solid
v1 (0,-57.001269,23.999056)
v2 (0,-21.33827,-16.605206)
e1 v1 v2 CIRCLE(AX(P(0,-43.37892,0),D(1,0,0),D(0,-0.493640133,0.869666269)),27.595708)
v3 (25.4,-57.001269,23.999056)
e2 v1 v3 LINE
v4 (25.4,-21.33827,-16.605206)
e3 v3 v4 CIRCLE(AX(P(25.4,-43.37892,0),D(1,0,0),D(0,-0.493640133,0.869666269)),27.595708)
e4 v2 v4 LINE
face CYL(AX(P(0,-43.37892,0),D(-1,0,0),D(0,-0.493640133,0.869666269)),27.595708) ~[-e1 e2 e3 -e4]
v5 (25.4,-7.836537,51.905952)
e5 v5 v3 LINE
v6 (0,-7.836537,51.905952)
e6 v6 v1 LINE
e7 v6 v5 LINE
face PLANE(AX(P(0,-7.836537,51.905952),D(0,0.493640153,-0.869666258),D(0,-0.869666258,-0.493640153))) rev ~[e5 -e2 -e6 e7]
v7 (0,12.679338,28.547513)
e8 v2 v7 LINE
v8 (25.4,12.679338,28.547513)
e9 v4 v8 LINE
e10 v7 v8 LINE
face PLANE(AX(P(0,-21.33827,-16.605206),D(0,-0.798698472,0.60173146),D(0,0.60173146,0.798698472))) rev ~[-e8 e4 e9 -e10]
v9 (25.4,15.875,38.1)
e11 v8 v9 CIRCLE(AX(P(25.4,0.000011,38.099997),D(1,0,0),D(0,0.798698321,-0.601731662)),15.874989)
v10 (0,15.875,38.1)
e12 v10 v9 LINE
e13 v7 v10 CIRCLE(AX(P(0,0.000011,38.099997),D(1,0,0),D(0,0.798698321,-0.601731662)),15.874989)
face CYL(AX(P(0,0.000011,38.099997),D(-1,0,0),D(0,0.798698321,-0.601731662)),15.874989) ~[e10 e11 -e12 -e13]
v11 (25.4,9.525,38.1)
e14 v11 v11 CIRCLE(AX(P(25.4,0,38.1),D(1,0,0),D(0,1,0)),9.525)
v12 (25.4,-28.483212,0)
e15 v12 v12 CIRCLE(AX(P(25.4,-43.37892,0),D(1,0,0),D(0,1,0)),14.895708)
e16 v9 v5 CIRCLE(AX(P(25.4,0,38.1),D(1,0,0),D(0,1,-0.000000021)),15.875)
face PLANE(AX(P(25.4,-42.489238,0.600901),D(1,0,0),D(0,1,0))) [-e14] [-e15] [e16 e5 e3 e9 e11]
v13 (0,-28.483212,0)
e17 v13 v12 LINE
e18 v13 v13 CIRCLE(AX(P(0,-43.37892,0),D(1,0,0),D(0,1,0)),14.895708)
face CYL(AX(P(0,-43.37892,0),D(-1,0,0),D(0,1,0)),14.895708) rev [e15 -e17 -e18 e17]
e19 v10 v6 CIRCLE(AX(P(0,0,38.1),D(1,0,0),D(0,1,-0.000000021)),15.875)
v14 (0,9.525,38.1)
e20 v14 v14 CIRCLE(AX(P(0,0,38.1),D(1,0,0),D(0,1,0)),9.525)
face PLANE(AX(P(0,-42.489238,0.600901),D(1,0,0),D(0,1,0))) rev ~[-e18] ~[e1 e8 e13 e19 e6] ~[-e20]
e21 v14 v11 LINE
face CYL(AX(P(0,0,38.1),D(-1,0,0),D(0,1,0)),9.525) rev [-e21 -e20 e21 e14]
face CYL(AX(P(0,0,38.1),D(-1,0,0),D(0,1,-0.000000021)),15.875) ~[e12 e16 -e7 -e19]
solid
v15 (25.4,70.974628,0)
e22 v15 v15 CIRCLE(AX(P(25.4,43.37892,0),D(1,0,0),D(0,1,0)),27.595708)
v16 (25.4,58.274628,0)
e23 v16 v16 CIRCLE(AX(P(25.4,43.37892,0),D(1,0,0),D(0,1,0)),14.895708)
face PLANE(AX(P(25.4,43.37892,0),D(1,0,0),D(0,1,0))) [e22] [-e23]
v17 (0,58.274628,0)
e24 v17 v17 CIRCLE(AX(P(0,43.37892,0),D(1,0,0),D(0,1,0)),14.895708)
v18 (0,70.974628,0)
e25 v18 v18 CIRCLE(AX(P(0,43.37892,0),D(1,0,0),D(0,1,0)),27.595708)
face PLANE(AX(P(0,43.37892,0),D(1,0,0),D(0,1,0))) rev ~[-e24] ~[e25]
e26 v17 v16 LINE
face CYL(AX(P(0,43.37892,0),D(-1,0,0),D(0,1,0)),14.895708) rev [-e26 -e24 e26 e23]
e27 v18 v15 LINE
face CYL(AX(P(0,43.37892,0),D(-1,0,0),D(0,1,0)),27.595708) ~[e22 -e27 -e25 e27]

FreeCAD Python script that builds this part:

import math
import FreeCAD as App
import Part
import Sketcher
Q = App.Units.Quantity

doc = App.newDocument("Part")
body = doc.addObject("PartDesign::Body", "Body")
body.AllowCompound = True

sketch1 = doc.addObject("Sketcher::SketchObject", "Sketch")
body.addObject(sketch1)
sketch1.AttachmentSupport = (doc.YZ_Plane, [""])
sketch1.MapMode = "FlatFace"
sketch1.addGeometry([
    Part.ArcOfCircle(Part.Circle(App.Vector(-43.37892, 0, 0), App.Vector(0, 0, 1), 27.595708), math.radians(119.580119), math.radians(323.005995)),
    Part.LineSegment(App.Vector(-21.33827, -16.605206, 0), App.Vector(12.679338, 28.547513, 0)),
    Part.ArcOfCircle(Part.Circle(App.Vector(0.000011, 38.099997, 0), App.Vector(0, 0, 1), 15.874989), math.radians(-36.99402), math.radians(0.000012)),
    Part.ArcOfCircle(Part.Circle(App.Vector(0, 38.1, 0), App.Vector(0, 0, 1), 15.875), math.radians(-0.000001), math.radians(119.58012)),
    Part.LineSegment(App.Vector(-7.836537, 51.905952, 0), App.Vector(-57.001269, 23.999056, 0)),
    Part.Circle(App.Vector(-43.37892, 0, 0), App.Vector(0, 0, 1), 14.895708),
    Part.Circle(App.Vector(0, 38.1, 0), App.Vector(0, 0, 1), 9.525),
    Part.Circle(App.Vector(43.37892, 0, 0), App.Vector(0, 0, 1), 27.595708),
    Part.Circle(App.Vector(43.37892, 0, 0), App.Vector(0, 0, 1), 14.895708),
], False)
sketch1.addConstraint([
    Sketcher.Constraint("Tangent", 0, 2, 1, 1),
    Sketcher.Constraint("Tangent", 1, 2, 2, 1),
    Sketcher.Constraint("Tangent", 2, 2, 3, 1),
    Sketcher.Constraint("Tangent", 3, 2, 4, 1),
    Sketcher.Constraint("Tangent", 4, 2, 0, 1),
    Sketcher.Constraint("Coincident", 5, 3, 0, 3),
    Sketcher.Constraint("Coincident", 6, 3, 3, 3),
    Sketcher.Constraint("Coincident", 8, 3, 7, 3),
    Sketcher.Constraint("Equal", 0, 7),
    Sketcher.Constraint("Equal", 5, 8),
    Sketcher.Constraint("Symmetric", 0, 3, 7, 3, -1, 1),
    Sketcher.Constraint("PointOnObject", 0, 3, -1),
    Sketcher.Constraint("PointOnObject", 3, 3, -2),
    Sketcher.Constraint("Horizontal", 6, 3, 2, 2),
    Sketcher.Constraint("Equal", 1, 4),
    Sketcher.Constraint("Diameter", 6, Q("0.75 in")),
    Sketcher.Constraint("Radius", 3, Q("0.625 in")),
    Sketcher.Constraint("DistanceY", -1, 1, 2, 3, Q("1.4999999 in")),
    Sketcher.Constraint("Radius", 0, 27.595708),
    Sketcher.Constraint("Diameter", 5, 29.791416),
    Sketcher.Constraint("DistanceX", 4, 2, 0, 2, 35.662999),
])
pad1 = doc.addObject("PartDesign::Pad", "Pad")
body.addObject(pad1)
pad1.Profile = sketch1
pad1.Length = Q("1 in")

doc.recompute()
